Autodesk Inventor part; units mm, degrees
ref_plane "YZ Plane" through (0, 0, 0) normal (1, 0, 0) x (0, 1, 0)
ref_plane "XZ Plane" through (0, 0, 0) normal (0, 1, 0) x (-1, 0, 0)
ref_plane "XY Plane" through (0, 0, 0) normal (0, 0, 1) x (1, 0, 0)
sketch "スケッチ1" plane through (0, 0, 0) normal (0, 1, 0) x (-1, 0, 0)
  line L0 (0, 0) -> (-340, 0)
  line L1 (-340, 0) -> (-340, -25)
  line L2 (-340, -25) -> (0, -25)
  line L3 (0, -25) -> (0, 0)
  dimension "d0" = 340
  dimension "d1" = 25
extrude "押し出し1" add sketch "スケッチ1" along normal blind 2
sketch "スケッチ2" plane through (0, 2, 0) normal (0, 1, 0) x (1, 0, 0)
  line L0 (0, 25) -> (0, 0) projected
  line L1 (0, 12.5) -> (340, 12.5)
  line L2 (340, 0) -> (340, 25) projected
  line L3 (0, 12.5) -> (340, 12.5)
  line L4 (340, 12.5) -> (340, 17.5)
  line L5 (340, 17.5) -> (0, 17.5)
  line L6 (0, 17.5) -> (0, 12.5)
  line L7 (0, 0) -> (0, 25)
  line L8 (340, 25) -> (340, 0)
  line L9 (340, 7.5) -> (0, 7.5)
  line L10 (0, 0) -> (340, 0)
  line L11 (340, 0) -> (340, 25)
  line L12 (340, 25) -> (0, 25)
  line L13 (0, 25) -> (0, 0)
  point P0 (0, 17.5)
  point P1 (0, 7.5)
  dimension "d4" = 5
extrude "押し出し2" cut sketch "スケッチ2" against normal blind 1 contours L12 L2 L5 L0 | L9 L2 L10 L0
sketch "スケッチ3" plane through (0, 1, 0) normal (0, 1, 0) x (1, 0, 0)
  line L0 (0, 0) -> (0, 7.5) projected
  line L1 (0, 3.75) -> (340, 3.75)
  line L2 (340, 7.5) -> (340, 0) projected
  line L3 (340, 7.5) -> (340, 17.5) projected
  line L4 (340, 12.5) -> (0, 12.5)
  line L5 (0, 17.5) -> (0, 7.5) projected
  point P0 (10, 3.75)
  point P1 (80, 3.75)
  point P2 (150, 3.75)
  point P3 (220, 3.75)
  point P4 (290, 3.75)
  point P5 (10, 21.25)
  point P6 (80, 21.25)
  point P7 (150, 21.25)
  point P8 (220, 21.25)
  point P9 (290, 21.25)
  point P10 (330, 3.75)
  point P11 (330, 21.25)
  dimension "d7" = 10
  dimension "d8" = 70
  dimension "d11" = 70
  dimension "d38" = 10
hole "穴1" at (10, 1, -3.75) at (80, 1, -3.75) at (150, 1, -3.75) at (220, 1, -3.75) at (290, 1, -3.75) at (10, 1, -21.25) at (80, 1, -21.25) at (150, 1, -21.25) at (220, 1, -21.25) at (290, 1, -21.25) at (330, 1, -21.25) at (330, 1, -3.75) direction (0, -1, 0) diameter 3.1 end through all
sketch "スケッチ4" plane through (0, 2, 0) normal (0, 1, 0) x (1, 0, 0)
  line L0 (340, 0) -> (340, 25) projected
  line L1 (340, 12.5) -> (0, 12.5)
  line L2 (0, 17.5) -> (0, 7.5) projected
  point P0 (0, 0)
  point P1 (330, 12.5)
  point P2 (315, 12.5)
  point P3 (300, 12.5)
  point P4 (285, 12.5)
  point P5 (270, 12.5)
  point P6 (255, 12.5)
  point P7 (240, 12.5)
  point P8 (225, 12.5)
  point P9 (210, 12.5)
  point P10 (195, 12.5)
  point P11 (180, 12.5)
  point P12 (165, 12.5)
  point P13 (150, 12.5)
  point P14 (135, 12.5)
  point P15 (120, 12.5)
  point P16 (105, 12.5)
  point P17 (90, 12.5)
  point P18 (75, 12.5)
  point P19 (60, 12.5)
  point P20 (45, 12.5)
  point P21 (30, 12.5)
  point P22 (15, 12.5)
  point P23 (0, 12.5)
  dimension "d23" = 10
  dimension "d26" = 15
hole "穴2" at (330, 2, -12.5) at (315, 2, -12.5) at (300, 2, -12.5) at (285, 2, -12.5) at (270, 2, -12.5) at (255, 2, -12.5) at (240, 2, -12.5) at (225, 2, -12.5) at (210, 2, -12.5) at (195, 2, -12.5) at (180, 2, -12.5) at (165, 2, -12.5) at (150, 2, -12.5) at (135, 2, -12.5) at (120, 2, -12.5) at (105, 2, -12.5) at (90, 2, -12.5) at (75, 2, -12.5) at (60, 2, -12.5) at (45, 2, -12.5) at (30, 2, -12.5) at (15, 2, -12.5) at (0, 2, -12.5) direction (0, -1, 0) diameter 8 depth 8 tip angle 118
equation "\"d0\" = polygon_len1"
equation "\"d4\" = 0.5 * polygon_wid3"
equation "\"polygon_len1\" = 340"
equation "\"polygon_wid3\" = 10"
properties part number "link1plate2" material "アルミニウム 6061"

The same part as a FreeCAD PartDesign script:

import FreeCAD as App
import Part
import Sketcher

V = App.Vector

doc = App.newDocument("Part")
body = doc.addObject("PartDesign::Body", "Body")

# Sketch on XZ plane
sketch1 = body.newObject("Sketcher::SketchObject", "Sketch")
sketch1.AttachmentSupport = (doc.getObject("XZ_Plane"), [""])
sketch1.MapMode = "FlatFace"
sketch1.addGeometry(Part.LineSegment(V(0, -25, 0), V(0, 0, 0)), False)
sketch1.addGeometry(Part.LineSegment(V(0, 0, 0), V(340, 0, 0)), False)
sketch1.addGeometry(Part.LineSegment(V(340, 0, 0), V(340, -25, 0)), False)
sketch1.addGeometry(Part.LineSegment(V(340, -25, 0), V(0, -25, 0)), False)
sketch1.addConstraint(Sketcher.Constraint("Coincident", 0, 2, 1, 1))
sketch1.addConstraint(Sketcher.Constraint("Coincident", 1, 2, 2, 1))
sketch1.addConstraint(Sketcher.Constraint("Coincident", 2, 2, 3, 1))
sketch1.addConstraint(Sketcher.Constraint("Coincident", 3, 2, 0, 1))
sketch1.addConstraint(Sketcher.Constraint("Vertical", 0))
sketch1.addConstraint(Sketcher.Constraint("Horizontal", 1))
sketch1.addConstraint(Sketcher.Constraint("Vertical", 2))
sketch1.addConstraint(Sketcher.Constraint("Horizontal", 3))
sketch1.addConstraint(Sketcher.Constraint("Coincident", 0, 2, -1, 1))
sketch1.addConstraint(Sketcher.Constraint("DistanceX", 1, 1, 1, 2, 340.0))
sketch1.addConstraint(Sketcher.Constraint("DistanceY", 0, 1, 0, 2, 25.0))
pad1 = body.newObject("PartDesign::Pad", "Pad")
pad1.Profile = sketch1
pad1.Length = 2
pad1.Reversed = True

# Sketch on XZ plane
sketch2 = body.newObject("Sketcher::SketchObject", "Sketch001")
sketch2.AttachmentSupport = (doc.getObject("XZ_Plane"), [""])
sketch2.MapMode = "FlatFace"
sketch2.AttachmentOffset = App.Placement(V(0, 0, -2), App.Rotation())
sketch2.addGeometry(Part.LineSegment(V(340, -25, 0), V(0, -25, 0)), False)
sketch2.addGeometry(Part.LineSegment(V(0, -25, 0), V(0, -17.5, 0)), False)
sketch2.addGeometry(Part.LineSegment(V(0, -17.5, 0), V(340, -17.5, 0)), False)
sketch2.addGeometry(Part.LineSegment(V(340, -17.5, 0), V(340, -25, 0)), False)
sketch2.addGeometry(Part.LineSegment(V(340, -7.5, 0), V(0, -7.5, 0)), False)
sketch2.addGeometry(Part.LineSegment(V(0, -7.5, 0), V(0, 0, 0)), False)
sketch2.addGeometry(Part.LineSegment(V(0, 0, 0), V(340, 0, 0)), False)
sketch2.addGeometry(Part.LineSegment(V(340, 0, 0), V(340, -7.5, 0)), False)
sketch2.addConstraint(Sketcher.Constraint("Coincident", 0, 2, 1, 1))
sketch2.addConstraint(Sketcher.Constraint("Coincident", 1, 2, 2, 1))
sketch2.addConstraint(Sketcher.Constraint("Coincident", 2, 2, 3, 1))
sketch2.addConstraint(Sketcher.Constraint("Coincident", 3, 2, 0, 1))
sketch2.addConstraint(Sketcher.Constraint("Coincident", 4, 2, 5, 1))
sketch2.addConstraint(Sketcher.Constraint("Coincident", 5, 2, 6, 1))
sketch2.addConstraint(Sketcher.Constraint("Coincident", 6, 2, 7, 1))
sketch2.addConstraint(Sketcher.Constraint("Coincident", 7, 2, 4, 1))
sketch2.addConstraint(Sketcher.Constraint("Horizontal", 0))
sketch2.addConstraint(Sketcher.Constraint("Vertical", 1))
sketch2.addConstraint(Sketcher.Constraint("Horizontal", 2))
sketch2.addConstraint(Sketcher.Constraint("Vertical", 3))
sketch2.addConstraint(Sketcher.Constraint("Horizontal", 4))
sketch2.addConstraint(Sketcher.Constraint("Vertical", 5))
sketch2.addConstraint(Sketcher.Constraint("Horizontal", 6))
sketch2.addConstraint(Sketcher.Constraint("Vertical", 7))
sketch2.addConstraint(Sketcher.Constraint("Coincident", 5, 2, -1, 1))
sketch2.addConstraint(Sketcher.Constraint("PointOnObject", 0, 2, -2))
sketch2.addConstraint(Sketcher.Constraint("Vertical", 3, 2, 6, 2))
sketch2.addConstraint(Sketcher.Constraint("Equal", 3, 5))
sketch2.addConstraint(Sketcher.Constraint("DistanceX", 0, 2, 0, 1, 340.0))
sketch2.addConstraint(Sketcher.Constraint("DistanceY", 1, 1, 1, 2, 7.5))
sketch2.addConstraint(Sketcher.Constraint("DistanceY", 0, 2, -1, 1, 25.0))
pocket1 = body.newObject("PartDesign::Pocket", "Pocket")
pocket1.Profile = sketch2
pocket1.Length = 1
pocket1.Reversed = True

# Sketch on XZ plane
sketch3 = body.newObject("Sketcher::SketchObject", "Sketch002")
sketch3.AttachmentSupport = (doc.getObject("XZ_Plane"), [""])
sketch3.MapMode = "FlatFace"
sketch3.AttachmentOffset = App.Placement(V(0, 0, -1), App.Rotation())
sketch3.addGeometry(Part.Circle(V(10, -3.75, 0), V(0, 0, 1), 1.55), False)
sketch3.addGeometry(Part.Circle(V(80, -3.75, 0), V(0, 0, 1), 1.55), False)
sketch3.addGeometry(Part.Circle(V(150, -3.75, 0), V(0, 0, 1), 1.55), False)
sketch3.addGeometry(Part.Circle(V(220, -3.75, 0), V(0, 0, 1), 1.55), False)
sketch3.addGeometry(Part.Circle(V(290, -3.75, 0), V(0, 0, 1), 1.55), False)
sketch3.addGeometry(Part.Circle(V(10, -21.25, 0), V(0, 0, 1), 1.55), False)
sketch3.addGeometry(Part.Circle(V(80, -21.25, 0), V(0, 0, 1), 1.55), False)
sketch3.addGeometry(Part.Circle(V(150, -21.25, 0), V(0, 0, 1), 1.55), False)
sketch3.addGeometry(Part.Circle(V(220, -21.25, 0), V(0, 0, 1), 1.55), False)
sketch3.addGeometry(Part.Circle(V(290, -21.25, 0), V(0, 0, 1), 1.55), False)
sketch3.addGeometry(Part.Circle(V(330, -21.25, 0), V(0, 0, 1), 1.55), False)
sketch3.addGeometry(Part.Circle(V(330, -3.75, 0), V(0, 0, 1), 1.55), False)
sketch3.addConstraint(Sketcher.Constraint("Equal", 0, 1))
sketch3.addConstraint(Sketcher.Constraint("Equal", 1, 2))
sketch3.addConstraint(Sketcher.Constraint("Equal", 2, 3))
sketch3.addConstraint(Sketcher.Constraint("Equal", 3, 4))
sketch3.addConstraint(Sketcher.Constraint("Equal", 4, 5))
sketch3.addConstraint(Sketcher.Constraint("Equal", 5, 6))
sketch3.addConstraint(Sketcher.Constraint("Equal", 6, 7))
sketch3.addConstraint(Sketcher.Constraint("Equal", 7, 8))
sketch3.addConstraint(Sketcher.Constraint("Equal", 8, 9))
sketch3.addConstraint(Sketcher.Constraint("Equal", 9, 10))
sketch3.addConstraint(Sketcher.Constraint("Equal", 10, 11))
sketch3.addConstraint(Sketcher.Constraint("Horizontal", 0, 3, 1, 3))
sketch3.addConstraint(Sketcher.Constraint("Horizontal", 1, 3, 2, 3))
sketch3.addConstraint(Sketcher.Constraint("Horizontal", 2, 3, 3, 3))
sketch3.addConstraint(Sketcher.Constraint("Horizontal", 3, 3, 4, 3))
sketch3.addConstraint(Sketcher.Constraint("Horizontal", 5, 3, 6, 3))
sketch3.addConstraint(Sketcher.Constraint("Horizontal", 6, 3, 7, 3))
sketch3.addConstraint(Sketcher.Constraint("Horizontal", 7, 3, 8, 3))
sketch3.addConstraint(Sketcher.Constraint("Horizontal", 8, 3, 9, 3))
sketch3.addConstraint(Sketcher.Constraint("Horizontal", 9, 3, 10, 3))
sketch3.addConstraint(Sketcher.Constraint("Horizontal", 4, 3, 11, 3))
sketch3.addConstraint(Sketcher.Constraint("Vertical", 0, 3, 5, 3))
sketch3.addConstraint(Sketcher.Constraint("Vertical", 1, 3, 6, 3))
sketch3.addConstraint(Sketcher.Constraint("Vertical", 2, 3, 7, 3))
sketch3.addConstraint(Sketcher.Constraint("Vertical", 3, 3, 8, 3))
sketch3.addConstraint(Sketcher.Constraint("Vertical", 4, 3, 9, 3))
sketch3.addConstraint(Sketcher.Constraint("Vertical", 10, 3, 11, 3))
sketch3.addConstraint(Sketcher.Constraint("Diameter", 0, 3.1))
sketch3.addConstraint(Sketcher.Constraint("DistanceX", -1, 1, 0, 3, 10.0))
sketch3.addConstraint(Sketcher.Constraint("DistanceX", -1, 1, 1, 3, 80.0))
sketch3.addConstraint(Sketcher.Constraint("DistanceX", -1, 1, 2, 3, 150.0))
sketch3.addConstraint(Sketcher.Constraint("DistanceX", -1, 1, 3, 3, 220.0))
sketch3.addConstraint(Sketcher.Constraint("DistanceX", -1, 1, 4, 3, 290.0))
sketch3.addConstraint(Sketcher.Constraint("DistanceX", -1, 1, 10, 3, 330.0))
sketch3.addConstraint(Sketcher.Constraint("DistanceY", 5, 3, 0, 3, 17.5))
sketch3.addConstraint(Sketcher.Constraint("DistanceY", 0, 3, -1, 1, 3.75))
doc.recompute()
hole = body.newObject("PartDesign::Hole", "Hole")
hole.Profile = sketch3
hole.ThreadType = "None"
hole.Diameter = 3.1
hole.DepthType = "ThroughAll"
hole.Reversed = True

# Sketch on XZ plane
sketch4 = body.newObject("Sketcher::SketchObject", "Sketch003")
sketch4.AttachmentSupport = (doc.getObject("XZ_Plane"), [""])
sketch4.MapMode = "FlatFace"
sketch4.AttachmentOffset = App.Placement(V(0, 0, -2), App.Rotation())
sketch4.addGeometry(Part.Circle(V(330, -12.5, 0), V(0, 0, 1), 4), False)
sketch4.addGeometry(Part.Circle(V(315, -12.5, 0), V(0, 0, 1), 4), False)
sketch4.addGeometry(Part.Circle(V(300, -12.5, 0), V(0, 0, 1), 4), False)
sketch4.addGeometry(Part.Circle(V(285, -12.5, 0), V(0, 0, 1), 4), False)
sketch4.addGeometry(Part.Circle(V(270, -12.5, 0), V(0, 0, 1), 4), False)
sketch4.addGeometry(Part.Circle(V(255, -12.5, 0), V(0, 0, 1), 4), False)
sketch4.addGeometry(Part.Circle(V(240, -12.5, 0), V(0, 0, 1), 4), False)
sketch4.addGeometry(Part.Circle(V(225, -12.5, 0), V(0, 0, 1), 4), False)
sketch4.addGeometry(Part.Circle(V(210, -12.5, 0), V(0, 0, 1), 4), False)
sketch4.addGeometry(Part.Circle(V(195, -12.5, 0), V(0, 0, 1), 4), False)
sketch4.addGeometry(Part.Circle(V(180, -12.5, 0), V(0, 0, 1), 4), False)
sketch4.addGeometry(Part.Circle(V(165, -12.5, 0), V(0, 0, 1), 4), False)
sketch4.addGeometry(Part.Circle(V(150, -12.5, 0), V(0, 0, 1), 4), False)
sketch4.addGeometry(Part.Circle(V(135, -12.5, 0), V(0, 0, 1), 4), False)
sketch4.addGeometry(Part.Circle(V(120, -12.5, 0), V(0, 0, 1), 4), False)
sketch4.addGeometry(Part.Circle(V(105, -12.5, 0), V(0, 0, 1), 4), False)
sketch4.addGeometry(Part.Circle(V(90, -12.5, 0), V(0, 0, 1), 4), False)
sketch4.addGeometry(Part.Circle(V(75, -12.5, 0), V(0, 0, 1), 4), False)
sketch4.addGeometry(Part.Circle(V(60, -12.5, 0), V(0, 0, 1), 4), False)
sketch4.addGeometry(Part.Circle(V(45, -12.5, 0), V(0, 0, 1), 4), False)
sketch4.addGeometry(Part.Circle(V(30, -12.5, 0), V(0, 0, 1), 4), False)
sketch4.addGeometry(Part.Circle(V(15, -12.5, 0), V(0, 0, 1), 4), False)
sketch4.addGeometry(Part.Circle(V(0, -12.5, 0), V(0, 0, 1), 4), False)
sketch4.addConstraint(Sketcher.Constraint("Equal", 0, 1))
sketch4.addConstraint(Sketcher.Constraint("Equal", 1, 2))
sketch4.addConstraint(Sketcher.Constraint("Equal", 2, 3))
sketch4.addConstraint(Sketcher.Constraint("Equal", 3, 4))
sketch4.addConstraint(Sketcher.Constraint("Equal", 4, 5))
sketch4.addConstraint(Sketcher.Constraint("Equal", 5, 6))
sketch4.addConstraint(Sketcher.Constraint("Equal", 6, 7))
sketch4.addConstraint(Sketcher.Constraint("Equal", 7, 8))
sketch4.addConstraint(Sketcher.Constraint("Equal", 8, 9))
sketch4.addConstraint(Sketcher.Constraint("Equal", 9, 10))
sketch4.addConstraint(Sketcher.Constraint("Equal", 10, 11))
sketch4.addConstraint(Sketcher.Constraint("Equal", 11, 12))
sketch4.addConstraint(Sketcher.Constraint("Equal", 12, 13))
sketch4.addConstraint(Sketcher.Constraint("Equal", 13, 14))
sketch4.addConstraint(Sketcher.Constraint("Equal", 14, 15))
sketch4.addConstraint(Sketcher.Constraint("Equal", 15, 16))
sketch4.addConstraint(Sketcher.Constraint("Equal", 16, 17))
sketch4.addConstraint(Sketcher.Constraint("Equal", 17, 18))
sketch4.addConstraint(Sketcher.Constraint("Equal", 18, 19))
sketch4.addConstraint(Sketcher.Constraint("Equal", 19, 20))
sketch4.addConstraint(Sketcher.Constraint("Equal", 20, 21))
sketch4.addConstraint(Sketcher.Constraint("Equal", 21, 22))
sketch4.addConstraint(Sketcher.Constraint("PointOnObject", 22, 3, -2))
sketch4.addConstraint(Sketcher.Constraint("Horizontal", 0, 3, 1, 3))
sketch4.addConstraint(Sketcher.Constraint("Horizontal", 1, 3, 2, 3))
sketch4.addConstraint(Sketcher.Constraint("Horizontal", 2, 3, 3, 3))
sketch4.addConstraint(Sketcher.Constraint("Horizontal", 3, 3, 4, 3))
sketch4.addConstraint(Sketcher.Constraint("Horizontal", 4, 3, 5, 3))
sketch4.addConstraint(Sketcher.Constraint("Horizontal", 5, 3, 6, 3))
sketch4.addConstraint(Sketcher.Constraint("Horizontal", 6, 3, 7, 3))
sketch4.addConstraint(Sketcher.Constraint("Horizontal", 7, 3, 8, 3))
sketch4.addConstraint(Sketcher.Constraint("Horizontal", 8, 3, 9, 3))
sketch4.addConstraint(Sketcher.Constraint("Horizontal", 9, 3, 10, 3))
sketch4.addConstraint(Sketcher.Constraint("Horizontal", 10, 3, 11, 3))
sketch4.addConstraint(Sketcher.Constraint("Horizontal", 11, 3, 12, 3))
sketch4.addConstraint(Sketcher.Constraint("Horizontal", 12, 3, 13, 3))
sketch4.addConstraint(Sketcher.Constraint("Horizontal", 13, 3, 14, 3))
sketch4.addConstraint(Sketcher.Constraint("Horizontal", 14, 3, 15, 3))
sketch4.addConstraint(Sketcher.Constraint("Horizontal", 15, 3, 16, 3))
sketch4.addConstraint(Sketcher.Constraint("Horizontal", 16, 3, 17, 3))
sketch4.addConstraint(Sketcher.Constraint("Horizontal", 17, 3, 18, 3))
sketch4.addConstraint(Sketcher.Constraint("Horizontal", 18, 3, 19, 3))
sketch4.addConstraint(Sketcher.Constraint("Horizontal", 19, 3, 20, 3))
sketch4.addConstraint(Sketcher.Constraint("Horizontal", 20, 3, 21, 3))
sketch4.addConstraint(Sketcher.Constraint("Horizontal", 21, 3, 22, 3))
sketch4.addConstraint(Sketcher.Constraint("Diameter", 0, 8.0))
sketch4.addConstraint(Sketcher.Constraint("DistanceX", -1, 1, 0, 3, 330.0))
sketch4.addConstraint(Sketcher.Constraint("DistanceX", -1, 1, 1, 3, 315.0))
sketch4.addConstraint(Sketcher.Constraint("DistanceX", -1, 1, 2, 3, 300.0))
sketch4.addConstraint(Sketcher.Constraint("DistanceX", -1, 1, 3, 3, 285.0))
sketch4.addConstraint(Sketcher.Constraint("DistanceX", -1, 1, 4, 3, 270.0))
sketch4.addConstraint(Sketcher.Constraint("DistanceX", -1, 1, 5, 3, 255.0))
sketch4.addConstraint(Sketcher.Constraint("DistanceX", -1, 1, 6, 3, 240.0))
sketch4.addConstraint(Sketcher.Constraint("DistanceX", -1, 1, 7, 3, 225.0))
sketch4.addConstraint(Sketcher.Constraint("DistanceX", -1, 1, 8, 3, 210.0))
sketch4.addConstraint(Sketcher.Constraint("DistanceX", -1, 1, 9, 3, 195.0))
sketch4.addConstraint(Sketcher.Constraint("DistanceX", -1, 1, 10, 3, 180.0))
sketch4.addConstraint(Sketcher.Constraint("DistanceX", -1, 1, 11, 3, 165.0))
sketch4.addConstraint(Sketcher.Constraint("DistanceX", -1, 1, 12, 3, 150.0))
sketch4.addConstraint(Sketcher.Constraint("DistanceX", -1, 1, 13, 3, 135.0))
sketch4.addConstraint(Sketcher.Constraint("DistanceX", -1, 1, 14, 3, 120.0))
sketch4.addConstraint(Sketcher.Constraint("DistanceX", -1, 1, 15, 3, 105.0))
sketch4.addConstraint(Sketcher.Constraint("DistanceX", -1, 1, 16, 3, 90.0))
sketch4.addConstraint(Sketcher.Constraint("DistanceX", -1, 1, 17, 3, 75.0))
sketch4.addConstraint(Sketcher.Constraint("DistanceX", -1, 1, 18, 3, 60.0))
sketch4.addConstraint(Sketcher.Constraint("DistanceX", -1, 1, 19, 3, 45.0))
sketch4.addConstraint(Sketcher.Constraint("DistanceX", -1, 1, 20, 3, 30.0))
sketch4.addConstraint(Sketcher.Constraint("DistanceX", -1, 1, 21, 3, 15.0))
sketch4.addConstraint(Sketcher.Constraint("DistanceY", 0, 3, -1, 1, 12.5))
doc.recompute()
hole2 = body.newObject("PartDesign::Hole", "Hole001")
hole2.Profile = sketch4
hole2.ThreadType = "None"
hole2.Diameter = 8
hole2.DepthType = "Dimension"
hole2.Depth = 8
hole2.DrillPoint = "Angled"
hole2.DrillPointAngle = 118
hole2.Reversed = True

doc.recompute()
